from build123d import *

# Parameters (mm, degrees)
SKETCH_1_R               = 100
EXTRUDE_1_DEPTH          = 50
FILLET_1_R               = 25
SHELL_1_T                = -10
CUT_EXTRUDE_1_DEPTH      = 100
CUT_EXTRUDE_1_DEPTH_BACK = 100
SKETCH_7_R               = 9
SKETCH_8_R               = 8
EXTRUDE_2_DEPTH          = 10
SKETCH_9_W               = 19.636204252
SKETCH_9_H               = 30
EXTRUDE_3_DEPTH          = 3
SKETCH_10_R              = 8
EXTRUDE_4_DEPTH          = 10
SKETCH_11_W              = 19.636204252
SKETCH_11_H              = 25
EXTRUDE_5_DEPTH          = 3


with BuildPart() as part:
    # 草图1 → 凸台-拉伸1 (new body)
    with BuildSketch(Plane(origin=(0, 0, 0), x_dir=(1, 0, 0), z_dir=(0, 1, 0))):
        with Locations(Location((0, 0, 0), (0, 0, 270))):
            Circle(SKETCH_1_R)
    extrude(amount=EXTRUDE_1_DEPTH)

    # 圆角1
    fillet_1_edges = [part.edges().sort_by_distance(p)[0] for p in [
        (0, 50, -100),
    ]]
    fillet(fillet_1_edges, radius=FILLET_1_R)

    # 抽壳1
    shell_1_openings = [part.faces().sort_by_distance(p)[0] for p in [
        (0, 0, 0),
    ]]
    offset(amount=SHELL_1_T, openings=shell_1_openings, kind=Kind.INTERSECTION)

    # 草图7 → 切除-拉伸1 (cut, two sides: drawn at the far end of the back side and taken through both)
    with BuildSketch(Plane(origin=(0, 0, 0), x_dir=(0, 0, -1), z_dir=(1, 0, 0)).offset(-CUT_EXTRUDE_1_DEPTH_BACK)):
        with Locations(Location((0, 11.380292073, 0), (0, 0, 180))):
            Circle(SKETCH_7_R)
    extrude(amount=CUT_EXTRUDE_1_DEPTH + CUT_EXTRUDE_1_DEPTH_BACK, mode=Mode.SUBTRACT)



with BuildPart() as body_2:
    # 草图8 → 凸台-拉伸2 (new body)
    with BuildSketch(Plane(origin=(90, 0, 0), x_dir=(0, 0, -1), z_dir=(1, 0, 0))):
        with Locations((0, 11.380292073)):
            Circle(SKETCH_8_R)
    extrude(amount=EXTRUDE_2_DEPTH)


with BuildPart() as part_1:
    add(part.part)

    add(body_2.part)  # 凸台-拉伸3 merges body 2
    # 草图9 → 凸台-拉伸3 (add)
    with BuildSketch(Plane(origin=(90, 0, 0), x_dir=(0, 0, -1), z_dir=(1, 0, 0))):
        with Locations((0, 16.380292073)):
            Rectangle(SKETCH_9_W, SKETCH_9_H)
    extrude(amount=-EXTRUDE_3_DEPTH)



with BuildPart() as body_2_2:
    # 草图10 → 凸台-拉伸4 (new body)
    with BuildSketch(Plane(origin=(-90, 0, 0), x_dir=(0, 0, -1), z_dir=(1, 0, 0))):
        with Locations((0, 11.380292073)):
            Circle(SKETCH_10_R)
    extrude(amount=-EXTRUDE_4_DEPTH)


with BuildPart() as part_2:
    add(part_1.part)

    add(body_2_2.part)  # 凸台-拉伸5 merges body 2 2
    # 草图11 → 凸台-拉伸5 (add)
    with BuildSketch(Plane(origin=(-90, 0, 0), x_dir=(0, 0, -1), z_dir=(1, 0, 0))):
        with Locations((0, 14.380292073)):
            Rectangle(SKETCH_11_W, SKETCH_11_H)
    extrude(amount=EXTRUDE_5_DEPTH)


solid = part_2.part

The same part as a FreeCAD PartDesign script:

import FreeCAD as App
import Part
import Sketcher
from FreeCAD import Vector


def edges_at(feature, points):
    """Names of the edges that pass closest to the given points."""
    edges = feature.Shape.Edges
    near = lambda p: min(range(len(edges)), key=lambda i: edges[i].distToShape(Part.Vertex(*p))[0])
    return sorted({f"Edge{near(p) + 1}" for p in points})


def faces_at(feature, points):
    """Names of the faces that lie closest to the given points."""
    faces = feature.Shape.Faces
    near = lambda p: min(range(len(faces)), key=lambda i: faces[i].distToShape(Part.Vertex(*p))[0])
    return sorted({f"Face{near(p) + 1}" for p in points})


def add_polygon(sketch, points):
    """Adds a closed chain of lines whose ends are joined by coincident constraints."""
    first, n = sketch.GeometryCount, len(points)
    for a, b in zip(points, points[1:] + points[:1]):
        sketch.addGeometry(Part.LineSegment(App.Vector(*a, 0), App.Vector(*b, 0)), False)
    for i in range(n):
        sketch.addConstraint(Sketcher.Constraint("Coincident", first + i, 2, first + (i + 1) % n, 1))

doc = App.newDocument("Part")
params = doc.addObject("Spreadsheet::Sheet", "Params")
for row, (alias, value) in enumerate([
    ("sketch1_diameter", "200 mm"),
    ("pad1_length", "50 mm"),
    ("fillet_radius", "25 mm"),
    ("thickness_wall", "10 mm"),
    ("sketch2_diameter", "18 mm"),
    ("sketch3_diameter", "16 mm"),
    ("pad2_length", "10 mm"),
    ("sketch4_width", "30 mm"),
    ("pad3_length", "3 mm"),
    ("sketch5_diameter", "16 mm"),
    ("pad4_length", "10 mm"),
    ("sketch6_width", "25 mm"),
    ("pad5_length", "3 mm"),
], start=1):
    params.set(f"A{row}", alias)
    params.set(f"B{row}", "=" + value)
    params.setAlias(f"B{row}", alias)

body = doc.addObject("PartDesign::Body", "Body")

# Sketch on XZ plane
sketch1 = body.newObject("Sketcher::SketchObject", "Sketch")
sketch1.AttachmentSupport = (doc.getObject("XZ_Plane"), [""])
sketch1.MapMode = "FlatFace"
sketch1.addGeometry(Part.Circle(Vector(0, 0, 0), Vector(0, 0, 1), 100), False)
sketch1.addConstraint([
    Sketcher.Constraint("Coincident", 0, 3, -1, 1),
    Sketcher.Constraint("Diameter", 0, 200.0),
])
sketch1.setExpression("Constraints[1]", "Params.sketch1_diameter")
pad1 = body.newObject("PartDesign::Pad", "Pad")
pad1.Profile = sketch1
pad1.setExpression("Length", "Params.pad1_length")
pad1.Reversed = True
doc.recompute()

fillet = body.newObject("PartDesign::Fillet", "Fillet")
fillet.Base = (pad1, edges_at(pad1, [(0, 50, -100)]))
fillet.setExpression("Radius", "Params.fillet_radius")
doc.recompute()

thickness = body.newObject("PartDesign::Thickness", "Thickness")
thickness.Base = (fillet, faces_at(fillet, [(0, 0, 0)]))
thickness.setExpression("Value", "Params.thickness_wall")
thickness.Reversed = True
thickness.Join = "Intersection"

# Sketch on YZ plane
sketch2 = body.newObject("Sketcher::SketchObject", "Sketch001")
sketch2.AttachmentSupport = (doc.getObject("YZ_Plane"), [""])
sketch2.MapMode = "FlatFace"
sketch2.addGeometry(Part.Circle(Vector(11, 0, 0), Vector(0, 0, 1), 9), False)
sketch2.addConstraint([
    Sketcher.Constraint("PointOnObject", 0, 3, -1),
    Sketcher.Constraint("Diameter", 0, 18.0),
    Sketcher.Constraint("DistanceX", -1, 1, 0, 3, 11.380292),
])
sketch2.setExpression("Constraints[1]", "Params.sketch2_diameter")
pocket1 = body.newObject("PartDesign::Pocket", "Pocket")
pocket1.Profile = sketch2
pocket1.Type = "ThroughAll"
pocket1.Midplane = True
body2 = doc.addObject("PartDesign::Body", "Body001")

# Sketch on YZ plane
sketch3 = body2.newObject("Sketcher::SketchObject", "Sketch002")
sketch3.AttachmentSupport = (doc.getObject("YZ_Plane001"), [""])
sketch3.MapMode = "FlatFace"
sketch3.AttachmentOffset = App.Placement(Vector(0, 0, 90), App.Rotation())
sketch3.addGeometry(Part.Circle(Vector(11, 0, 0), Vector(0, 0, 1), 8), False)
sketch3.addConstraint([
    Sketcher.Constraint("PointOnObject", 0, 3, -1),
    Sketcher.Constraint("Diameter", 0, 16.0),
    Sketcher.Constraint("DistanceX", -1, 1, 0, 3, 11.380292),
])
sketch3.setExpression("Constraints[1]", "Params.sketch3_diameter")
pad2 = body2.newObject("PartDesign::Pad", "Pad001")
pad2.Profile = sketch3
pad2.setExpression("Length", "Params.pad2_length")
body.AllowCompound = True
doc.recompute()

boolean = body.newObject("PartDesign::Boolean", "Boolean")
boolean.Type = "Fuse"
boolean.addObjects([body2])

# Sketch on YZ plane
sketch4 = body.newObject("Sketcher::SketchObject", "Sketch003")
sketch4.AttachmentSupport = (doc.getObject("YZ_Plane"), [""])
sketch4.MapMode = "FlatFace"
sketch4.AttachmentOffset = App.Placement(Vector(0, 0, 90), App.Rotation())
add_polygon(sketch4, [(31, 10), (1, 10), (1, -10), (31, -10)])  # lines 0-3
sketch4.addConstraint([
    Sketcher.Constraint("Horizontal", 0),
    Sketcher.Constraint("Vertical", 1),
    Sketcher.Constraint("Horizontal", 2),
    Sketcher.Constraint("Vertical", 3),
    Sketcher.Constraint("DistanceX", 0, 2, 0, 1, 30.0),
    Sketcher.Constraint("DistanceY", 1, 2, 1, 1, 19.636204),
    Sketcher.Constraint("DistanceX", -1, 1, 0, 2, 1.380292),
    Sketcher.Constraint("DistanceY", -1, 1, 0, 2, 9.818102),
])
sketch4.setExpression("Constraints[8]", "Params.sketch4_width")
pad3 = body.newObject("PartDesign::Pad", "Pad002")
pad3.Profile = sketch4
pad3.setExpression("Length", "Params.pad3_length")
pad3.Reversed = True
body3 = doc.addObject("PartDesign::Body", "Body002")

# Sketch on YZ plane
sketch5 = body3.newObject("Sketcher::SketchObject", "Sketch004")
sketch5.AttachmentSupport = (doc.getObject("YZ_Plane002"), [""])
sketch5.MapMode = "FlatFace"
sketch5.AttachmentOffset = App.Placement(Vector(0, 0, -90), App.Rotation())
sketch5.addGeometry(Part.Circle(Vector(11, 0, 0), Vector(0, 0, 1), 8), False)
sketch5.addConstraint([
    Sketcher.Constraint("PointOnObject", 0, 3, -1),
    Sketcher.Constraint("Diameter", 0, 16.0),
    Sketcher.Constraint("DistanceX", -1, 1, 0, 3, 11.380292),
])
sketch5.setExpression("Constraints[1]", "Params.sketch5_diameter")
pad4 = body3.newObject("PartDesign::Pad", "Pad003")
pad4.Profile = sketch5
pad4.setExpression("Length", "Params.pad4_length")
pad4.Reversed = True
body.AllowCompound = True
doc.recompute()

boolean2 = body.newObject("PartDesign::Boolean", "Boolean001")
boolean2.Type = "Fuse"
boolean2.addObjects([body3])

# Sketch on YZ plane
sketch6 = body.newObject("Sketcher::SketchObject", "Sketch005")
sketch6.AttachmentSupport = (doc.getObject("YZ_Plane"), [""])
sketch6.MapMode = "FlatFace"
sketch6.AttachmentOffset = App.Placement(Vector(0, 0, -90), App.Rotation())
add_polygon(sketch6, [(27, 10), (2, 10), (2, -10), (27, -10)])  # lines 0-3
sketch6.addConstraint([
    Sketcher.Constraint("Horizontal", 0),
    Sketcher.Constraint("Vertical", 1),
    Sketcher.Constraint("Horizontal", 2),
    Sketcher.Constraint("Vertical", 3),
    Sketcher.Constraint("DistanceX", 0, 2, 0, 1, 25.0),
    Sketcher.Constraint("DistanceY", 1, 2, 1, 1, 19.636204),
    Sketcher.Constraint("DistanceX", -1, 1, 0, 2, 1.880292),
    Sketcher.Constraint("DistanceY", -1, 1, 0, 2, 9.818102),
])
sketch6.setExpression("Constraints[8]", "Params.sketch6_width")
pad5 = body.newObject("PartDesign::Pad", "Pad004")
pad5.Profile = sketch6
pad5.setExpression("Length", "Params.pad5_length")

doc.recompute()
